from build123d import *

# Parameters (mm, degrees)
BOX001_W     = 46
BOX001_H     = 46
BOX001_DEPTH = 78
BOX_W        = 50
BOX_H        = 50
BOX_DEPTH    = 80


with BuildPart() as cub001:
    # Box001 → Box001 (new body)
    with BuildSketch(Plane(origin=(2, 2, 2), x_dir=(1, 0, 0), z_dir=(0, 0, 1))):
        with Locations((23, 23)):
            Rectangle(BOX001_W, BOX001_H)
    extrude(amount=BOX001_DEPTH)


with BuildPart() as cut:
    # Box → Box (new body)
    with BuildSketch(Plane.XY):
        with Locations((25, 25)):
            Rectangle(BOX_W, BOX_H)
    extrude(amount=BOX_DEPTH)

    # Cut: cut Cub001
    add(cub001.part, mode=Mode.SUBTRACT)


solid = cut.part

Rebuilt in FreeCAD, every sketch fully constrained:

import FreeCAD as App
import Part
import Sketcher

V = App.Vector


def add_polygon(sketch, points):
    """Adds a closed chain of lines whose ends are joined by coincident constraints."""
    first, n = sketch.GeometryCount, len(points)
    for a, b in zip(points, points[1:] + points[:1]):
        sketch.addGeometry(Part.LineSegment(App.Vector(*a, 0), App.Vector(*b, 0)), False)
    for i in range(n):
        sketch.addConstraint(Sketcher.Constraint("Coincident", first + i, 2, first + (i + 1) % n, 1))

doc = App.newDocument("Part")
params = doc.addObject("Spreadsheet::Sheet", "Params")
for row, (alias, value) in enumerate([
    ("sketch1_width", "46 mm"),
    ("pad1_length", "78 mm"),
    ("sketch2_width", "50 mm"),
    ("pad2_length", "80 mm"),
], start=1):
    params.set(f"A{row}", alias)
    params.set(f"B{row}", "=" + value)
    params.setAlias(f"B{row}", alias)

body = doc.addObject("PartDesign::Body", "Body")

sketch1 = body.newObject("Sketcher::SketchObject", "Sketch")
sketch1.AttachmentSupport = (doc.getObject("XY_Plane"), [""])
sketch1.MapMode = "FlatFace"
sketch1.AttachmentOffset = App.Placement(V(0, 0, 2), App.Rotation())
add_polygon(sketch1, [(2, 48), (2, 2), (48, 2), (48, 48)])
sketch1.addConstraint([
    Sketcher.Constraint("Vertical", 0),
    Sketcher.Constraint("Horizontal", 1),
    Sketcher.Constraint("Vertical", 2),
    Sketcher.Constraint("Horizontal", 3),
    Sketcher.Constraint("Equal", 3, 0),
    Sketcher.Constraint("DistanceX", 1, 1, 1, 2, 46.0),
    Sketcher.Constraint("DistanceX", -1, 1, 0, 2, 2.0),
    Sketcher.Constraint("DistanceY", -1, 1, 0, 2, 2.0),
])
sketch1.setExpression("Constraints[9]", "Params.sketch1_width")
pad1 = body.newObject("PartDesign::Pad", "Pad")
pad1.Profile = sketch1
pad1.setExpression("Length", "Params.pad1_length")
body2 = doc.addObject("PartDesign::Body", "Body001")

sketch2 = body2.newObject("Sketcher::SketchObject", "Sketch001")
sketch2.AttachmentSupport = (doc.getObject("XY_Plane001"), [""])
sketch2.MapMode = "FlatFace"
add_polygon(sketch2, [(0, 50), (0, 0), (50, 0), (50, 50)])
sketch2.addConstraint([
    Sketcher.Constraint("Vertical", 0),
    Sketcher.Constraint("Horizontal", 1),
    Sketcher.Constraint("Vertical", 2),
    Sketcher.Constraint("Horizontal", 3),
    Sketcher.Constraint("Coincident", 0, 2, -1, 1),
    Sketcher.Constraint("Equal", 3, 0),
    Sketcher.Constraint("DistanceX", 1, 1, 1, 2, 50.0),
])
sketch2.setExpression("Constraints[10]", "Params.sketch2_width")
pad2 = body2.newObject("PartDesign::Pad", "Pad001")
pad2.Profile = sketch2
pad2.setExpression("Length", "Params.pad2_length")
doc.recompute()

boolean = body2.newObject("PartDesign::Boolean", "Boolean")
boolean.Type = "Cut"
boolean.addObjects([body])

doc.recompute()
